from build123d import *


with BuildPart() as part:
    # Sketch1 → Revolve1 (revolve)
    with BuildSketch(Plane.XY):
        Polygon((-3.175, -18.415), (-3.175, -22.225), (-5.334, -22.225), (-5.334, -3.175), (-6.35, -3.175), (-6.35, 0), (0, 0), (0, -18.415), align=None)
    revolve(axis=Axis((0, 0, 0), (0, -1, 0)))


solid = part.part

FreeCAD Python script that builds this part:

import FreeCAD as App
import Part
import Sketcher
from FreeCAD import Vector
Q = App.Units.Quantity


def add_polygon(sketch, points):
    """Adds a closed chain of lines whose ends are joined by coincident constraints."""
    first, n = sketch.GeometryCount, len(points)
    for a, b in zip(points, points[1:] + points[:1]):
        sketch.addGeometry(Part.LineSegment(App.Vector(*a, 0), App.Vector(*b, 0)), False)
    for i in range(n):
        sketch.addConstraint(Sketcher.Constraint("Coincident", first + i, 2, first + (i + 1) % n, 1))

doc = App.newDocument("Part")
body = doc.addObject("PartDesign::Body", "Body")

sketch1 = doc.addObject("Sketcher::SketchObject", "Sketch")
body.addObject(sketch1)
sketch1.AttachmentSupport = (doc.XY_Plane, [""])
sketch1.MapMode = "FlatFace"
add_polygon(sketch1, [(-3.2, -22.2), (-3.2, -18.4), (0, -18.4), (0, 0), (-6.3, 0), (-6.3, -3.2), (-5.3, -3.2), (-5.3, -22.2)])
sketch1.addConstraint([
    Sketcher.Constraint("Vertical", 0),
    Sketcher.Constraint("Horizontal", 1),
    Sketcher.Constraint("Vertical", 2),
    Sketcher.Constraint("Horizontal", 3),
    Sketcher.Constraint("Vertical", 4),
    Sketcher.Constraint("Horizontal", 5),
    Sketcher.Constraint("Vertical", 6),
    Sketcher.Constraint("Horizontal", 7),
    Sketcher.Constraint("Coincident", 2, 2, -1, 1),
    Sketcher.Constraint("Equal", 1, 4),
    Sketcher.Constraint("DistanceX", 3, 2, 3, 1, Q("0.25 in")),
    Sketcher.Constraint("DistanceX", 5, 1, 5, 2, Q("0.04 in")),
    Sketcher.Constraint("DistanceY", 0, 1, 0, 2, Q("0.15 in")),
    Sketcher.Constraint("DistanceY", 6, 2, 6, 1, Q("0.75 in")),
    Sketcher.Constraint("DistanceX", 1, 1, 1, 2, Q("0.125 in")),
])
revolution = doc.addObject("PartDesign::Revolution", "Revolution")
body.addObject(revolution)
revolution.Profile = sketch1
revolution.ReferenceAxis = (sketch1, ["V_Axis"])
revolution.Angle = 360

doc.recompute()
